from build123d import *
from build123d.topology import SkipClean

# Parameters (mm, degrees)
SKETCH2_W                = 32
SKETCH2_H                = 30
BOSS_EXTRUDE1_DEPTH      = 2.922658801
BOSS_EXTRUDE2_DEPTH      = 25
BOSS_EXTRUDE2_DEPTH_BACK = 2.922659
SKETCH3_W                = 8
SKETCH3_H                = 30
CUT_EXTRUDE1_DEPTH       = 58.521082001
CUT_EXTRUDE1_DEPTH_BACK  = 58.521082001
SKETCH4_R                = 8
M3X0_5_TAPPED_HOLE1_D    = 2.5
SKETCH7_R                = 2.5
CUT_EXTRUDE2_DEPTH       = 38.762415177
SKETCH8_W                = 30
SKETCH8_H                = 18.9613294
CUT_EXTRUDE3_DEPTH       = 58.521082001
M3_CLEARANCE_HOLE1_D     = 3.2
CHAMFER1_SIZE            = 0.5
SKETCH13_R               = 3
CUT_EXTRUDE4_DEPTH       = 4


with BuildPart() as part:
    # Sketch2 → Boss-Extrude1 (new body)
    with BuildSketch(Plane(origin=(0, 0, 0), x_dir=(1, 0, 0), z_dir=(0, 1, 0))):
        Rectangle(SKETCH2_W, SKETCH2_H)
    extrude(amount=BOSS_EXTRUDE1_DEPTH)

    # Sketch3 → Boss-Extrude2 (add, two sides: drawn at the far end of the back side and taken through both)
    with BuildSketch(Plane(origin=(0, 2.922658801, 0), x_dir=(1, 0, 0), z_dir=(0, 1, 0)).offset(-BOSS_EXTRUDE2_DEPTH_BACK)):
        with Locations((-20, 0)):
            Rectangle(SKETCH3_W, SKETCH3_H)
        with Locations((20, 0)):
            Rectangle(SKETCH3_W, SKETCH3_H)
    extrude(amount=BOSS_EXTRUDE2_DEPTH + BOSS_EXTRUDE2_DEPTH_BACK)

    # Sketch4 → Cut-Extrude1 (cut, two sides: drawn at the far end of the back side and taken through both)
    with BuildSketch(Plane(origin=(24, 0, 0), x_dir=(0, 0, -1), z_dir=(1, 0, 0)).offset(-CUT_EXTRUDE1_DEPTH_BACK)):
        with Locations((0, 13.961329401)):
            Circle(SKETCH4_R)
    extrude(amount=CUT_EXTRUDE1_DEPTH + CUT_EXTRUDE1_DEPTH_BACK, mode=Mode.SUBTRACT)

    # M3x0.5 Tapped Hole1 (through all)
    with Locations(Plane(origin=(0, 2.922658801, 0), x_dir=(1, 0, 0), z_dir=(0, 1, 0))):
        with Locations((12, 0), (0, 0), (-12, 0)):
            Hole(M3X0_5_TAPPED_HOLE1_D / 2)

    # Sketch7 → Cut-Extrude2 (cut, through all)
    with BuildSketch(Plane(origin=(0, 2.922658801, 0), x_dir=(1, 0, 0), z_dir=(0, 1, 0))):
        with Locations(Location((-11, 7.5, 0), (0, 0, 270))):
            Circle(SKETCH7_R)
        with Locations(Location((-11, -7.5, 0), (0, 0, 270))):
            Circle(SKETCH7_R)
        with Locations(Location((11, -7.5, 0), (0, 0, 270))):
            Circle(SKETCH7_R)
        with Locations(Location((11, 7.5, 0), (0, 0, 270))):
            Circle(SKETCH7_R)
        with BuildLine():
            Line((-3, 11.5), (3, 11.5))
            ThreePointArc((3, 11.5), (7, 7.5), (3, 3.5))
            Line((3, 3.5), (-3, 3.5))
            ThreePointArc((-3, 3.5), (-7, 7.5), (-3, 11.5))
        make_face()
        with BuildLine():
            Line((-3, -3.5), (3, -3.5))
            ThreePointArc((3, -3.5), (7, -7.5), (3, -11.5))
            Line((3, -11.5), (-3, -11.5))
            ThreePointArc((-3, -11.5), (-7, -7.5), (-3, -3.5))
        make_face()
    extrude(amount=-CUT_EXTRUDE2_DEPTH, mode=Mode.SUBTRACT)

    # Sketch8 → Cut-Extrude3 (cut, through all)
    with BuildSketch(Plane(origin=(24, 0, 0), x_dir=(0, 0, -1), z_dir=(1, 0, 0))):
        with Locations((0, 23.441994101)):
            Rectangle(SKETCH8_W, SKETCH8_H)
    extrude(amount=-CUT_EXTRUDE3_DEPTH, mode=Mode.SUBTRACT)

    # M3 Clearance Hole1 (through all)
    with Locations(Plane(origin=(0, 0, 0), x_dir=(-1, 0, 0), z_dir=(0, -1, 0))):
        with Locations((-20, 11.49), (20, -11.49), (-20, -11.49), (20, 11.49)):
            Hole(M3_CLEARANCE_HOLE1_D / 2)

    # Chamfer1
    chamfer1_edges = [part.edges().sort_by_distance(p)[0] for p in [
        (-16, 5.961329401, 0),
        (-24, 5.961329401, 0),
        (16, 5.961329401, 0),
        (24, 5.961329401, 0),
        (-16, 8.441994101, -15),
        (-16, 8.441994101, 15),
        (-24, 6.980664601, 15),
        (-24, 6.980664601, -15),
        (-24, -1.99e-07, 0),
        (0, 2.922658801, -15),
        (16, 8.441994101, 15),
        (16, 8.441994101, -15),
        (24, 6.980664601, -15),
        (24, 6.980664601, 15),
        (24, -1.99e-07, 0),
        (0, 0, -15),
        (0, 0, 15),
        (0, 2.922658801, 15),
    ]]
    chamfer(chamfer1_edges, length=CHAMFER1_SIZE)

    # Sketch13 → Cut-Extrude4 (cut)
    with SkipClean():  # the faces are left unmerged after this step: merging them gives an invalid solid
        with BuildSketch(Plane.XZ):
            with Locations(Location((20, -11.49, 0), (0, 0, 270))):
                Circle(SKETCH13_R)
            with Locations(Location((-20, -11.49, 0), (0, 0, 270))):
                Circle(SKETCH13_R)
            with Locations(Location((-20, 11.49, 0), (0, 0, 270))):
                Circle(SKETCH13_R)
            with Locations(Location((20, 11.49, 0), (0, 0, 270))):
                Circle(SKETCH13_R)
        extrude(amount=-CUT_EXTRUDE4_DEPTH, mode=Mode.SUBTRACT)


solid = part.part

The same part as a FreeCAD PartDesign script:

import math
import FreeCAD as App
import Part
import Sketcher

V = App.Vector


def edges_at(feature, points):
    """Names of the edges that pass closest to the given points."""
    edges = feature.Shape.Edges
    near = lambda p: min(range(len(edges)), key=lambda i: edges[i].distToShape(Part.Vertex(*p))[0])
    return sorted({f"Edge{near(p) + 1}" for p in points})

doc = App.newDocument("Part")
body = doc.addObject("PartDesign::Body", "Body")

sketch1 = doc.addObject("Sketcher::SketchObject", "Sketch")
body.addObject(sketch1)
sketch1.AttachmentSupport = (doc.XZ_Plane, [""])
sketch1.MapMode = "FlatFace"
sketch1.addGeometry([
    Part.LineSegment(V(-16, -15, 0), V(-16, 15, 0)),
    Part.LineSegment(V(-16, 15, 0), V(16, 15, 0)),
    Part.LineSegment(V(16, 15, 0), V(16, -15, 0)),
    Part.LineSegment(V(16, -15, 0), V(-16, -15, 0)),
], False)
sketch1.addConstraint([
    Sketcher.Constraint("Coincident", 0, 2, 1, 1),
    Sketcher.Constraint("Coincident", 1, 2, 2, 1),
    Sketcher.Constraint("Coincident", 2, 2, 3, 1),
    Sketcher.Constraint("Coincident", 3, 2, 0, 1),
    Sketcher.Constraint("Vertical", 0),
    Sketcher.Constraint("Horizontal", 1),
    Sketcher.Constraint("Vertical", 2),
    Sketcher.Constraint("Horizontal", 3),
    Sketcher.Constraint("Symmetric", 0, 2, 2, 2, -1, 1),
    Sketcher.Constraint("DistanceX", 1, 1, 1, 2, 32.0),
    Sketcher.Constraint("DistanceY", 0, 1, 0, 2, 30.0),
])
pad1 = doc.addObject("PartDesign::Pad", "Pad")
body.addObject(pad1)
pad1.Profile = sketch1
pad1.Length = 2.922659
pad1.Reversed = True

sketch2 = doc.addObject("Sketcher::SketchObject", "Sketch001")
body.addObject(sketch2)
sketch2.AttachmentSupport = (doc.XZ_Plane, [""])
sketch2.MapMode = "FlatFace"
sketch2.AttachmentOffset = App.Placement(V(0, 0, -2.922659), App.Rotation())
sketch2.addGeometry([
    Part.LineSegment(V(-24, -15, 0), V(-24, 15, 0)),
    Part.LineSegment(V(-24, 15, 0), V(-16, 15, 0)),
    Part.LineSegment(V(-16, 15, 0), V(-16, -15, 0)),
    Part.LineSegment(V(-16, -15, 0), V(-24, -15, 0)),
    Part.LineSegment(V(16, -15, 0), V(16, 15, 0)),
    Part.LineSegment(V(16, 15, 0), V(24, 15, 0)),
    Part.LineSegment(V(24, 15, 0), V(24, -15, 0)),
    Part.LineSegment(V(24, -15, 0), V(16, -15, 0)),
], False)
sketch2.addConstraint([
    Sketcher.Constraint("Coincident", 0, 2, 1, 1),
    Sketcher.Constraint("Coincident", 1, 2, 2, 1),
    Sketcher.Constraint("Coincident", 2, 2, 3, 1),
    Sketcher.Constraint("Coincident", 3, 2, 0, 1),
    Sketcher.Constraint("Coincident", 4, 2, 5, 1),
    Sketcher.Constraint("Coincident", 5, 2, 6, 1),
    Sketcher.Constraint("Coincident", 6, 2, 7, 1),
    Sketcher.Constraint("Coincident", 7, 2, 4, 1),
    Sketcher.Constraint("Vertical", 0),
    Sketcher.Constraint("Horizontal", 1),
    Sketcher.Constraint("Vertical", 2),
    Sketcher.Constraint("Horizontal", 3),
    Sketcher.Constraint("Vertical", 4),
    Sketcher.Constraint("Horizontal", 5),
    Sketcher.Constraint("Vertical", 6),
    Sketcher.Constraint("Horizontal", 7),
    Sketcher.Constraint("Symmetric", 2, 2, 4, 2, -1, 1),
    Sketcher.Constraint("Symmetric", 0, 2, 6, 2, -1, 1),
    Sketcher.Constraint("Horizontal", 1, 2, 4, 2),
    Sketcher.Constraint("DistanceX", 1, 1, 1, 2, 8.0),
    Sketcher.Constraint("DistanceY", 0, 1, 0, 2, 30.0),
    Sketcher.Constraint("DistanceX", 0, 2, -1, 1, 24.0),
])
pad2 = doc.addObject("PartDesign::Pad", "Pad001")
body.addObject(pad2)
pad2.Profile = sketch2
pad2.Type = "TwoLengths"
pad2.Length = 25
pad2.Length2 = 2.922659
pad2.Reversed = True

sketch3 = doc.addObject("Sketcher::SketchObject", "Sketch002")
body.addObject(sketch3)
sketch3.AttachmentSupport = (doc.YZ_Plane, [""])
sketch3.MapMode = "FlatFace"
sketch3.AttachmentOffset = App.Placement(V(0, 0, 24), App.Rotation())
sketch3.addGeometry(Part.Circle(V(14, 0, 0), V(0, 0, 1), 8), False)
sketch3.addConstraint([
    Sketcher.Constraint("PointOnObject", 0, 3, -1),
    Sketcher.Constraint("Diameter", 0, 16.0),
    Sketcher.Constraint("DistanceX", -1, 1, 0, 3, 13.961329),
])
pocket1 = doc.addObject("PartDesign::Pocket", "Pocket")
body.addObject(pocket1)
pocket1.Profile = sketch3
pocket1.Type = "ThroughAll"
pocket1.Midplane = True

sketch4 = doc.addObject("Sketcher::SketchObject", "Sketch003")
body.addObject(sketch4)
sketch4.AttachmentSupport = (doc.XZ_Plane, [""])
sketch4.MapMode = "FlatFace"
sketch4.AttachmentOffset = App.Placement(V(0, 0, -2.922659), App.Rotation())
sketch4.addGeometry([
    Part.Circle(V(12, 0, 0), V(0, 0, 1), 1.2),
    Part.Circle(V(0, 0, 0), V(0, 0, 1), 1.2),
    Part.Circle(V(-12, 0, 0), V(0, 0, 1), 1.2),
], False)
sketch4.addConstraint([
    Sketcher.Constraint("Coincident", 1, 3, -1, 1),
    Sketcher.Constraint("Equal", 0, 1),
    Sketcher.Constraint("Equal", 1, 2),
    Sketcher.Constraint("Symmetric", 0, 3, 2, 3, -1, 1),
    Sketcher.Constraint("PointOnObject", 0, 3, -1),
    Sketcher.Constraint("Diameter", 0, 2.5),
    Sketcher.Constraint("DistanceX", -1, 1, 0, 3, 12.0),
])
doc.recompute()
hole = doc.addObject("PartDesign::Hole", "Hole")
body.addObject(hole)
hole.Profile = sketch4
hole.ThreadType = "None"
hole.Diameter = 2.5
hole.DepthType = "ThroughAll"
hole.Reversed = True

sketch5 = doc.addObject("Sketcher::SketchObject", "Sketch004")
body.addObject(sketch5)
sketch5.AttachmentSupport = (doc.XZ_Plane, [""])
sketch5.MapMode = "FlatFace"
sketch5.AttachmentOffset = App.Placement(V(0, 0, -2.922659), App.Rotation())
sketch5.addGeometry([
    Part.Circle(V(-11, -7.5, 0), V(0, 0, 1), 2.5),
    Part.Circle(V(-11, 7.5, 0), V(0, 0, 1), 2.5),
    Part.Circle(V(11, 7.5, 0), V(0, 0, 1), 2.5),
    Part.Circle(V(11, -7.5, 0), V(0, 0, 1), 2.5),
    Part.LineSegment(V(3, -11.5, 0), V(-3, -11.5, 0)),
    Part.ArcOfCircle(Part.Circle(V(-3, -7.5, 0), V(0, 0, 1), 4), math.radians(90), math.radians(270)),
    Part.LineSegment(V(-3, -3.5, 0), V(3, -3.5, 0)),
    Part.ArcOfCircle(Part.Circle(V(3, -7.5, 0), V(0, 0, 1), 4), math.radians(-90), math.radians(90)),
    Part.LineSegment(V(3, 3.5, 0), V(-3, 3.5, 0)),
    Part.ArcOfCircle(Part.Circle(V(-3, 7.5, 0), V(0, 0, 1), 4), math.radians(90), math.radians(270)),
    Part.LineSegment(V(-3, 11.5, 0), V(3, 11.5, 0)),
    Part.ArcOfCircle(Part.Circle(V(3, 7.5, 0), V(0, 0, 1), 4), math.radians(-90), math.radians(90)),
], False)
sketch5.addConstraint([
    Sketcher.Constraint("Tangent", 4, 2, 5, 2),
    Sketcher.Constraint("Tangent", 5, 1, 6, 1),
    Sketcher.Constraint("Tangent", 6, 2, 7, 2),
    Sketcher.Constraint("Tangent", 7, 1, 4, 1),
    Sketcher.Constraint("Tangent", 8, 2, 9, 2),
    Sketcher.Constraint("Tangent", 9, 1, 10, 1),
    Sketcher.Constraint("Tangent", 10, 2, 11, 2),
    Sketcher.Constraint("Tangent", 11, 1, 8, 1),
    Sketcher.Constraint("Horizontal", 4),
    Sketcher.Constraint("Horizontal", 6),
    Sketcher.Constraint("Horizontal", 8),
    Sketcher.Constraint("Horizontal", 10),
    Sketcher.Constraint("Equal", 0, 1),
    Sketcher.Constraint("Equal", 1, 2),
    Sketcher.Constraint("Equal", 2, 3),
    Sketcher.Constraint("Equal", 7, 9),
    Sketcher.Constraint("Symmetric", 0, 3, 2, 3, -1, 1),
    Sketcher.Constraint("Symmetric", 1, 3, 3, 3, -1, 1),
    Sketcher.Constraint("Symmetric", 7, 3, 9, 3, -1, 1),
    Sketcher.Constraint("Symmetric", 1, 3, 2, 3, -2),
    Sketcher.Constraint("Horizontal", 3, 3, 5, 3),
    Sketcher.Constraint("Vertical", 5, 3, 9, 3),
    Sketcher.Constraint("Vertical", 7, 3, 11, 3),
    Sketcher.Constraint("Diameter", 0, 5.0),
    Sketcher.Constraint("Radius", 5, 4.0),
    Sketcher.Constraint("DistanceX", 4, 2, 4, 1, 6.0),
    Sketcher.Constraint("DistanceX", 0, 3, -1, 1, 11.0),
    Sketcher.Constraint("DistanceY", 0, 3, 1, 3, 15.0),
])
pocket2 = doc.addObject("PartDesign::Pocket", "Pocket001")
body.addObject(pocket2)
pocket2.Profile = sketch5
pocket2.Type = "ThroughAll"
pocket2.Reversed = True

sketch6 = doc.addObject("Sketcher::SketchObject", "Sketch005")
body.addObject(sketch6)
sketch6.AttachmentSupport = (doc.YZ_Plane, [""])
sketch6.MapMode = "FlatFace"
sketch6.AttachmentOffset = App.Placement(V(0, 0, 24), App.Rotation())
sketch6.addGeometry([
    Part.LineSegment(V(33, 15, 0), V(14, 15, 0)),
    Part.LineSegment(V(14, 15, 0), V(14, -15, 0)),
    Part.LineSegment(V(14, -15, 0), V(33, -15, 0)),
    Part.LineSegment(V(33, -15, 0), V(33, 15, 0)),
], False)
sketch6.addConstraint([
    Sketcher.Constraint("Coincident", 0, 2, 1, 1),
    Sketcher.Constraint("Coincident", 1, 2, 2, 1),
    Sketcher.Constraint("Coincident", 2, 2, 3, 1),
    Sketcher.Constraint("Coincident", 3, 2, 0, 1),
    Sketcher.Constraint("Horizontal", 0),
    Sketcher.Constraint("Vertical", 1),
    Sketcher.Constraint("Horizontal", 2),
    Sketcher.Constraint("Vertical", 3),
    Sketcher.Constraint("DistanceY", 1, 2, 1, 1, 30.0),
    Sketcher.Constraint("DistanceY", -1, 1, 0, 2, 15.0),
    Sketcher.Constraint("DistanceX", 0, 2, 0, 1, 18.961329),
    Sketcher.Constraint("DistanceX", -1, 1, 0, 2, 13.961329),
])
pocket3 = doc.addObject("PartDesign::Pocket", "Pocket002")
body.addObject(pocket3)
pocket3.Profile = sketch6
pocket3.Type = "ThroughAll"

sketch7 = doc.addObject("Sketcher::SketchObject", "Sketch006")
body.addObject(sketch7)
sketch7.AttachmentSupport = (doc.XZ_Plane, [""])
sketch7.MapMode = "FlatFace"
sketch7.addGeometry([
    Part.Circle(V(20, -11.5, 0), V(0, 0, 1), 1.6),
    Part.Circle(V(-20, 11.5, 0), V(0, 0, 1), 1.6),
    Part.Circle(V(20, 11.5, 0), V(0, 0, 1), 1.6),
    Part.Circle(V(-20, -11.5, 0), V(0, 0, 1), 1.6),
], False)
sketch7.addConstraint([
    Sketcher.Constraint("Equal", 0, 1),
    Sketcher.Constraint("Equal", 1, 2),
    Sketcher.Constraint("Equal", 2, 3),
    Sketcher.Constraint("Symmetric", 0, 3, 1, 3, -1, 1),
    Sketcher.Constraint("Symmetric", 2, 3, 3, 3, -1, 1),
    Sketcher.Constraint("Symmetric", 1, 3, 2, 3, -2),
    Sketcher.Constraint("Diameter", 0, 3.2),
    Sketcher.Constraint("DistanceX", -1, 1, 0, 3, 20.0),
    Sketcher.Constraint("DistanceY", 0, 3, -1, 1, 11.49),
])
doc.recompute()
hole2 = doc.addObject("PartDesign::Hole", "Hole001")
body.addObject(hole2)
hole2.Profile = sketch7
hole2.ThreadType = "None"
hole2.Diameter = 3.2
hole2.DepthType = "ThroughAll"
doc.recompute()

chamfer = doc.addObject("PartDesign::Chamfer", "Chamfer")
body.addObject(chamfer)
chamfer.Base = (hole2, edges_at(hole2, [
    (-16, 5.961, 0),
    (-24, 5.961, 0),
    (16, 5.961, 0),
    (24, 5.961, 0),
    (-16, 8.442, -15),
    (-16, 8.442, 15),
    (-24, 6.981, 15),
    (-24, 6.981, -15),
    (-24, 0, 0),
    (0, 2.923, -15),
    (16, 8.442, 15),
    (16, 8.442, -15),
    (24, 6.981, -15),
    (24, 6.981, 15),
    (24, 0, 0),
    (0, 0, -15),
    (0, 0, 15),
    (0, 2.923, 15),
]))
chamfer.Size = 0.5

sketch8 = doc.addObject("Sketcher::SketchObject", "Sketch007")
body.addObject(sketch8)
sketch8.AttachmentSupport = (doc.XZ_Plane, [""])
sketch8.MapMode = "FlatFace"
sketch8.addGeometry([
    Part.Circle(V(20, -11.5, 0), V(0, 0, 1), 3),
    Part.Circle(V(-20, -11.5, 0), V(0, 0, 1), 3),
    Part.Circle(V(-20, 11.5, 0), V(0, 0, 1), 3),
    Part.Circle(V(20, 11.5, 0), V(0, 0, 1), 3),
], False)
sketch8.addConstraint([
    Sketcher.Constraint("Equal", 0, 1),
    Sketcher.Constraint("Equal", 1, 2),
    Sketcher.Constraint("Equal", 2, 3),
    Sketcher.Constraint("Symmetric", 0, 3, 2, 3, -1, 1),
    Sketcher.Constraint("Symmetric", 1, 3, 3, 3, -1, 1),
    Sketcher.Constraint("Symmetric", 0, 3, 1, 3, -2),
    Sketcher.Constraint("Diameter", 0, 6.0),
    Sketcher.Constraint("DistanceX", -1, 1, 0, 3, 20.0),
    Sketcher.Constraint("DistanceY", 0, 3, -1, 1, 11.49),
])
pocket4 = doc.addObject("PartDesign::Pocket", "Pocket003")
body.addObject(pocket4)
pocket4.Profile = sketch8
pocket4.Length = 4

doc.recompute()
